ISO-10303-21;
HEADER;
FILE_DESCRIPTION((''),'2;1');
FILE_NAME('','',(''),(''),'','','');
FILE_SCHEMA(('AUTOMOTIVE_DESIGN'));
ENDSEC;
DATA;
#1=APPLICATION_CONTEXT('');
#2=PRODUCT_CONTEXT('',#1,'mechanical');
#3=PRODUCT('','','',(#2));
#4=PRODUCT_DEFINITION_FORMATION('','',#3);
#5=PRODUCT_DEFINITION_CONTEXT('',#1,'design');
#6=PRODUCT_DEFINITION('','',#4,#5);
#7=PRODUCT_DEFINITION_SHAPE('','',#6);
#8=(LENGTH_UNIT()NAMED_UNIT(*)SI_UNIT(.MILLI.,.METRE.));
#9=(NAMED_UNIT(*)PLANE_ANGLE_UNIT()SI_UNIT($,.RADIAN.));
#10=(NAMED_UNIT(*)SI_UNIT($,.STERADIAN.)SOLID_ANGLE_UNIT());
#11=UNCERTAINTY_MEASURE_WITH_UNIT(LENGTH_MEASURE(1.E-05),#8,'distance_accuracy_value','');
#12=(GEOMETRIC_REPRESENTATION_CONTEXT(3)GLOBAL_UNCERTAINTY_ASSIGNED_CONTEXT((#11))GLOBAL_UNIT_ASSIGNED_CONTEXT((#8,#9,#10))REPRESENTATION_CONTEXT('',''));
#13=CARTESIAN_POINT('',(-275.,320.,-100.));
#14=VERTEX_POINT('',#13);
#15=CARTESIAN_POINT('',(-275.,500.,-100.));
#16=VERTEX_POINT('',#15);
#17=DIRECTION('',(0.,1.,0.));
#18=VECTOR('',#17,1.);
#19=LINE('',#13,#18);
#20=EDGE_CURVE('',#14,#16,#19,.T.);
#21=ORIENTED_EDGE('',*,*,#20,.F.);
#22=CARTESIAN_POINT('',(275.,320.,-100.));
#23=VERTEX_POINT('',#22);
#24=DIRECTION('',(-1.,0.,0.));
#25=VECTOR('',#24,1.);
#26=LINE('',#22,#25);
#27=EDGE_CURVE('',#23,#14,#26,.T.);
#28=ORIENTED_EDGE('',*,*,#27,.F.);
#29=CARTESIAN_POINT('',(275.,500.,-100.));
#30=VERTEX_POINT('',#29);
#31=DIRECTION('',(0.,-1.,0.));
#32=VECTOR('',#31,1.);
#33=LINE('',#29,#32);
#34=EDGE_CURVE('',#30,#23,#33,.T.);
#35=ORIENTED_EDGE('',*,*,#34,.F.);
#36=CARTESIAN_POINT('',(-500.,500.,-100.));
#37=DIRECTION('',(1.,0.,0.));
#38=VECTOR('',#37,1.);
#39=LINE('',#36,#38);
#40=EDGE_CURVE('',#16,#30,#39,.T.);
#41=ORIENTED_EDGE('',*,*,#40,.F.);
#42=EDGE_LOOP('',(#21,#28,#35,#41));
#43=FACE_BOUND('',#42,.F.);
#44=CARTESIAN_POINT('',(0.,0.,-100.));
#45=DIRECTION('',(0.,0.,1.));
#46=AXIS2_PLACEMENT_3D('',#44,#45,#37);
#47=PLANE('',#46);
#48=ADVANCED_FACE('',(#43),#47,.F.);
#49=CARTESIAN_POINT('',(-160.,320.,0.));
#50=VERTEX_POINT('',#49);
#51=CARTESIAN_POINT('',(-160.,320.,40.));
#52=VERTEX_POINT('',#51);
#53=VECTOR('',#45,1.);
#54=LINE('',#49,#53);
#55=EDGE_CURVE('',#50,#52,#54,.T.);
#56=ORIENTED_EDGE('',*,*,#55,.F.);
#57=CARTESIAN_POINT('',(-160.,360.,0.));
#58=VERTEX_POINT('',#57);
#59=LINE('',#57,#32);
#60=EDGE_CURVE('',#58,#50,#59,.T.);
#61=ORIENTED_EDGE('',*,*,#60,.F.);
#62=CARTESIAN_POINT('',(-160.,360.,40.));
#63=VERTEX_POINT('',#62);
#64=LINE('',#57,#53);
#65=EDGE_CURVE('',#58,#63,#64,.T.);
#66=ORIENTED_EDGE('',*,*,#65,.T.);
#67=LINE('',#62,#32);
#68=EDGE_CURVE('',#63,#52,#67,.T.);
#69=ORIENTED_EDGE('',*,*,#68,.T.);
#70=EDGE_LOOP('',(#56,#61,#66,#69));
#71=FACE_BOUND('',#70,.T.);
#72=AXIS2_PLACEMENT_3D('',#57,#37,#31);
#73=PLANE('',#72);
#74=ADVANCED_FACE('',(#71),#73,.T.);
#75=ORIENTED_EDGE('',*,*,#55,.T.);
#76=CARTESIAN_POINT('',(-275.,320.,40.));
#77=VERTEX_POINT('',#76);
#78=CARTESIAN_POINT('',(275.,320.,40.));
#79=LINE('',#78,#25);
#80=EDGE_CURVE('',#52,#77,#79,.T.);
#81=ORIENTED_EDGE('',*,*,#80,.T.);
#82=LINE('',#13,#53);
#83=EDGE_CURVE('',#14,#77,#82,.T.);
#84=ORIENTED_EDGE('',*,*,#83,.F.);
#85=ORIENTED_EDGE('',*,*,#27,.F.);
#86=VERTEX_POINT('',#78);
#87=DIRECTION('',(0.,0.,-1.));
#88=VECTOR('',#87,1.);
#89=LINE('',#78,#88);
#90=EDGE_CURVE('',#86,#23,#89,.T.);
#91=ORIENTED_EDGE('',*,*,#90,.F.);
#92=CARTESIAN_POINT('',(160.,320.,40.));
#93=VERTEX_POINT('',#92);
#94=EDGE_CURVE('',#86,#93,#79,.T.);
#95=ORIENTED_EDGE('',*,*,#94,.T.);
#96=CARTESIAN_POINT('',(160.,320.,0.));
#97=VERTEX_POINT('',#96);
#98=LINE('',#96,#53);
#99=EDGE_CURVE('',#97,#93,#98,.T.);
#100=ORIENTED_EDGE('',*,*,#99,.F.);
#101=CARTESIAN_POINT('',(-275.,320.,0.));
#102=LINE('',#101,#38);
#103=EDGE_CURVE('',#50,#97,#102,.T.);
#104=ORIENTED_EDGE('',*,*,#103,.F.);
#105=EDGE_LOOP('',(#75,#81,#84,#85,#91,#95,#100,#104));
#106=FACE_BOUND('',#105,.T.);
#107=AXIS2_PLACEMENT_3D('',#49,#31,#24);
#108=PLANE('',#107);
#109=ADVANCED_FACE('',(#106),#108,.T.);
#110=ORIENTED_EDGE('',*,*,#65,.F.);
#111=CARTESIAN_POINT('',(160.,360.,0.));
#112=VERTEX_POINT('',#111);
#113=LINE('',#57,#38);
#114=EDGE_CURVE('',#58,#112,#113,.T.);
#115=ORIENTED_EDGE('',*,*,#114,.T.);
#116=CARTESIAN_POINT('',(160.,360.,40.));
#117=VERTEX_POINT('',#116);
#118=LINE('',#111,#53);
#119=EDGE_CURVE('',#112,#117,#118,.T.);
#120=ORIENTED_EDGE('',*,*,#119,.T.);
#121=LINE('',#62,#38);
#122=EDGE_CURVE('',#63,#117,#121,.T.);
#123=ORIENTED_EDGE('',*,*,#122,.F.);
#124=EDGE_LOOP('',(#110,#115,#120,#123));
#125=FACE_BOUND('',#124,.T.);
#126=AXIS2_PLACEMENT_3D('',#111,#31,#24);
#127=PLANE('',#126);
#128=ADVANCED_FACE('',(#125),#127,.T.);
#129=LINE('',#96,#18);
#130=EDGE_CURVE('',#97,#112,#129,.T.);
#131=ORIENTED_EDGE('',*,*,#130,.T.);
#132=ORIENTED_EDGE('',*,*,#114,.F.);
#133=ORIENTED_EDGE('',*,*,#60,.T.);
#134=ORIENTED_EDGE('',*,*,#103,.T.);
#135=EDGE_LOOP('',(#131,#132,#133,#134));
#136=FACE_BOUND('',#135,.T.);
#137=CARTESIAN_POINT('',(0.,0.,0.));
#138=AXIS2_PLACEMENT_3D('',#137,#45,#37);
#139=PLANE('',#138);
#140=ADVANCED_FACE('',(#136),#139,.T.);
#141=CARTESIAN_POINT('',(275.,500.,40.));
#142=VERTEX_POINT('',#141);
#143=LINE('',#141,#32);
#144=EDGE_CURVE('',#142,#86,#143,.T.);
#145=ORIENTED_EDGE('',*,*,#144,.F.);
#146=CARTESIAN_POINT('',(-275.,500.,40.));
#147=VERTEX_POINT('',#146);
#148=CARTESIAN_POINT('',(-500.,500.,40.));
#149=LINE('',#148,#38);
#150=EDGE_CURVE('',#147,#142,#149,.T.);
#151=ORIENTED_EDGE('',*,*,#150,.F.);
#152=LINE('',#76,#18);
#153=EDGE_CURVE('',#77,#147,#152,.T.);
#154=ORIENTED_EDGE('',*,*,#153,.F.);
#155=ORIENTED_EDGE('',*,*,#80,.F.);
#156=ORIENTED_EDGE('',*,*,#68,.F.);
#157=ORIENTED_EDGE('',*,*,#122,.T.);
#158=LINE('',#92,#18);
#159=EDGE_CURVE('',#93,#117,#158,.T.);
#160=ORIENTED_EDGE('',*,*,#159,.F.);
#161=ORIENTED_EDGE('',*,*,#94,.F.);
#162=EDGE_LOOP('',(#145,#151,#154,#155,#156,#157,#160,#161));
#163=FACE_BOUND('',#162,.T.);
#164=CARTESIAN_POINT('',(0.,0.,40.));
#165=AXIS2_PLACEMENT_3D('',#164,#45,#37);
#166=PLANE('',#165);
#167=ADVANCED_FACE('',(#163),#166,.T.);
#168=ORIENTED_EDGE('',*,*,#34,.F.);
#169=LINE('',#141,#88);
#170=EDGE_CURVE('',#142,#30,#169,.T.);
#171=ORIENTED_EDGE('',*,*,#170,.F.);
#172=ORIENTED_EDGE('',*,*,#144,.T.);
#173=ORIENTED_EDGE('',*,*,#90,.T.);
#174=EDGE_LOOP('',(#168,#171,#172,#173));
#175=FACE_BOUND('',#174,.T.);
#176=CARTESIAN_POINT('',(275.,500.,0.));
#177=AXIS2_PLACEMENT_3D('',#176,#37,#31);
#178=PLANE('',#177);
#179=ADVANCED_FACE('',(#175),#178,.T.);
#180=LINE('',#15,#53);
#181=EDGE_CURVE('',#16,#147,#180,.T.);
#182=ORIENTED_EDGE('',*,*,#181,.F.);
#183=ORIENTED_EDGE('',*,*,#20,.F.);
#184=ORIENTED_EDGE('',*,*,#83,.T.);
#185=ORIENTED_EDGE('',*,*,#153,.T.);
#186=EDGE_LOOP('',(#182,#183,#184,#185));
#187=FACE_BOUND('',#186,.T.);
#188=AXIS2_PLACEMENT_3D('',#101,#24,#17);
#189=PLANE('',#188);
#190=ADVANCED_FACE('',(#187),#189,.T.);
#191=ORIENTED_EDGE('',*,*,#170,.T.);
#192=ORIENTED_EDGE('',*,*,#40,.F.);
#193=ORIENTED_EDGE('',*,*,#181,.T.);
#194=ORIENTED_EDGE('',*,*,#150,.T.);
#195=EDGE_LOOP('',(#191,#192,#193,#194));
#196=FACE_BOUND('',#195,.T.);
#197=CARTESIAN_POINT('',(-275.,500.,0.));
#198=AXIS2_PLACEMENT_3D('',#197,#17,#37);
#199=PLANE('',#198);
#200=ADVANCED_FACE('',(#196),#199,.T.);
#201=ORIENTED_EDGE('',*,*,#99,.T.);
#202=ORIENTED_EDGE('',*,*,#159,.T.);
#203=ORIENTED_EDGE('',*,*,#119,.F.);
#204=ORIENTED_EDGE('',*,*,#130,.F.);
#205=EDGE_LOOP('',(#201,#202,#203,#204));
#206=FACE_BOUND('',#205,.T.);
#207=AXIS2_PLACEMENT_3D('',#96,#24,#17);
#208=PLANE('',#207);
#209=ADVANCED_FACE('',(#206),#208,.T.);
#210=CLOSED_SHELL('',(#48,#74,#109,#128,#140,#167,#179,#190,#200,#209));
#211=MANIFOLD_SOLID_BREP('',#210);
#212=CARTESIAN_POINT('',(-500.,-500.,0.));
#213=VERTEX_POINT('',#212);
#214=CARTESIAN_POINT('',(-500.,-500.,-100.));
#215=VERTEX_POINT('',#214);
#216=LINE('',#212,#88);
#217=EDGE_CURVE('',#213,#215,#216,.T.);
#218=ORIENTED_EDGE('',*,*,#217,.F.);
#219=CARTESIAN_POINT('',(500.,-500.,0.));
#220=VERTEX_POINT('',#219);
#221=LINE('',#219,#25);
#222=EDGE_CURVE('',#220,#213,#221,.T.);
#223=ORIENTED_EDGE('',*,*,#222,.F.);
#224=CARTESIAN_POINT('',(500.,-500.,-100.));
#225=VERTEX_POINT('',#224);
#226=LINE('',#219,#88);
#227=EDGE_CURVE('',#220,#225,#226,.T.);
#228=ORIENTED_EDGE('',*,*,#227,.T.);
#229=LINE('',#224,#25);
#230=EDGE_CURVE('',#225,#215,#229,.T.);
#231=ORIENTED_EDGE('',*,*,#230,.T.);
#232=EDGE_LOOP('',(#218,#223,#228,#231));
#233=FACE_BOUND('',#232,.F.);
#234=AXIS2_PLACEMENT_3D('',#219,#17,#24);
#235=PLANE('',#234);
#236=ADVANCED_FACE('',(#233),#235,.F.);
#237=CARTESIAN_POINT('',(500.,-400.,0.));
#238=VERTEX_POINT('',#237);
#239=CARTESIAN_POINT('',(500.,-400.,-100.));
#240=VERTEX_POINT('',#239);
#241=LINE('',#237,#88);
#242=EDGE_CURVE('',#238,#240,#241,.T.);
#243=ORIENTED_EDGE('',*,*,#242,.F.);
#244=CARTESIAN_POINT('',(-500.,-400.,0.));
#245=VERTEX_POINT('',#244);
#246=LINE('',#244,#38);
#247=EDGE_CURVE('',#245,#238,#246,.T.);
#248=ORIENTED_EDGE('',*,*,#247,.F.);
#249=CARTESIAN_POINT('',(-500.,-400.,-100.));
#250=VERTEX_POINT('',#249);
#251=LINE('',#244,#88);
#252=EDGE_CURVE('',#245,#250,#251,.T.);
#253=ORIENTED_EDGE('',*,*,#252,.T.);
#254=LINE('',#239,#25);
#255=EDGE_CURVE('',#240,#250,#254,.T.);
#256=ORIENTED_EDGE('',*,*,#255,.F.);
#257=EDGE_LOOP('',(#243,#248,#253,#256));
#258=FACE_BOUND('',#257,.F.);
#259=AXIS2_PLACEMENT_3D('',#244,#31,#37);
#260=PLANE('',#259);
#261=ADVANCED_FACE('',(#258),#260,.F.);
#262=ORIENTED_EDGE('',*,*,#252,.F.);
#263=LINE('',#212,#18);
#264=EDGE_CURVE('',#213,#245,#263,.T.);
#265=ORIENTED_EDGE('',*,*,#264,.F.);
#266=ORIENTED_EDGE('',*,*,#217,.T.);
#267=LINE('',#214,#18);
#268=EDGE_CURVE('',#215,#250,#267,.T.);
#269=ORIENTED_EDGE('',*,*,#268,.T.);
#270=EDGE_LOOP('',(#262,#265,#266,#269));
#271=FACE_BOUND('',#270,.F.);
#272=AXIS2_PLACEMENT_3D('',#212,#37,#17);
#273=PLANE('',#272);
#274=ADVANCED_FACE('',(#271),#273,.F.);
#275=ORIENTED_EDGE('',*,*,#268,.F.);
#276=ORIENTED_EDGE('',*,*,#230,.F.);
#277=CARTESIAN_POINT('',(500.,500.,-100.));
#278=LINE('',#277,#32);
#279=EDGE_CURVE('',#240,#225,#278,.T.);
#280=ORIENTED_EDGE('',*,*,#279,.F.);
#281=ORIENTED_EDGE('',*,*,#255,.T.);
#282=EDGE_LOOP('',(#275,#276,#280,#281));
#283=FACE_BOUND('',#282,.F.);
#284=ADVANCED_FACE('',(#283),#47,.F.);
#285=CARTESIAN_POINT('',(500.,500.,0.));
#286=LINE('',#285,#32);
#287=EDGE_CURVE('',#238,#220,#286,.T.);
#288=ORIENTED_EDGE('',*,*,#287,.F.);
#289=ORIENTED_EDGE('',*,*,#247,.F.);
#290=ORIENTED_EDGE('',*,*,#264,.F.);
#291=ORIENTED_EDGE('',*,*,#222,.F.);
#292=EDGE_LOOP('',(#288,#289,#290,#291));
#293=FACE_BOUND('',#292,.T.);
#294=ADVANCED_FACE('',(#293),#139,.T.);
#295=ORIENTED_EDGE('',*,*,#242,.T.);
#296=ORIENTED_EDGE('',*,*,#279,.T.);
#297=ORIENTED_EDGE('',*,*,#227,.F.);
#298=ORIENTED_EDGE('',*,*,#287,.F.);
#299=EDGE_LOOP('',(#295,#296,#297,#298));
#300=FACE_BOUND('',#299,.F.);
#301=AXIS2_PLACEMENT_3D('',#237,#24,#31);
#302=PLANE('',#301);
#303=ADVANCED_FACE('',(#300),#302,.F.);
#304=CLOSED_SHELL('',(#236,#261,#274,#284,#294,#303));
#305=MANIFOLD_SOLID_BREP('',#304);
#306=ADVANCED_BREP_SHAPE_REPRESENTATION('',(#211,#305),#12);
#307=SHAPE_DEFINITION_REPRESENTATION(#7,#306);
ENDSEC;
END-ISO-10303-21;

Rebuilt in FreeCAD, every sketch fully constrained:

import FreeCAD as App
import Part
import Sketcher
from FreeCAD import Vector
Q = App.Units.Quantity

doc = App.newDocument("Part")
body = doc.addObject("PartDesign::Body", "Body")
body.AllowCompound = True

# Sketch on XY plane
sketch1 = doc.addObject("Sketcher::SketchObject", "Sketch")
body.addObject(sketch1)
sketch1.AttachmentSupport = (doc.XY_Plane, [""])
sketch1.MapMode = "FlatFace"
sketch1.addGeometry([
    Part.LineSegment(Vector(275, 500, 0), Vector(-275, 500, 0)),  # 0
    Part.LineSegment(Vector(-275, 500, 0), Vector(-275, 320, 0)),  # 1
    Part.LineSegment(Vector(-275, 320, 0), Vector(275, 320, 0)),  # 2
    Part.LineSegment(Vector(275, 320, 0), Vector(275, 500, 0)),  # 3
    Part.LineSegment(Vector(-500, -400, 0), Vector(-500, -500, 0)),  # 4
    Part.LineSegment(Vector(-500, -500, 0), Vector(500, -500, 0)),  # 5
    Part.LineSegment(Vector(500, -500, 0), Vector(500, -400, 0)),  # 6
    Part.LineSegment(Vector(500, -400, 0), Vector(-500, -400, 0)),  # 7
], False)
sketch1.addConstraint([
    Sketcher.Constraint("Coincident", 0, 2, 1, 1),
    Sketcher.Constraint("Coincident", 1, 2, 2, 1),
    Sketcher.Constraint("Coincident", 2, 2, 3, 1),
    Sketcher.Constraint("Coincident", 3, 2, 0, 1),
    Sketcher.Constraint("Coincident", 4, 2, 5, 1),
    Sketcher.Constraint("Coincident", 5, 2, 6, 1),
    Sketcher.Constraint("Coincident", 6, 2, 7, 1),
    Sketcher.Constraint("Coincident", 7, 2, 4, 1),
    Sketcher.Constraint("Horizontal", 0),
    Sketcher.Constraint("Vertical", 1),
    Sketcher.Constraint("Horizontal", 2),
    Sketcher.Constraint("Vertical", 3),
    Sketcher.Constraint("Vertical", 4),
    Sketcher.Constraint("Horizontal", 5),
    Sketcher.Constraint("Vertical", 6),
    Sketcher.Constraint("Horizontal", 7),
    Sketcher.Constraint("DistanceX", 0, 2, 0, 1, Q("550 mm")),
    Sketcher.Constraint("DistanceX", 5, 1, 5, 2, Q("1000 mm")),
    Sketcher.Constraint("DistanceY", 1, 2, 1, 1, Q("180 mm")),
    Sketcher.Constraint("DistanceY", 4, 2, 4, 1, Q("100 mm")),
    Sketcher.Constraint("DistanceY", -1, 1, 1, 2, Q("320 mm")),
    Sketcher.Constraint("DistanceY", 4, 2, 0, 2, Q("1000 mm")),
    Sketcher.Constraint("DistanceX", 0, 2, -1, 1, Q("275 mm")),
    Sketcher.Constraint("DistanceX", 4, 2, -1, 1, Q("500 mm")),
])
pad1 = doc.addObject("PartDesign::Pad", "Pad")
body.addObject(pad1)
pad1.Profile = sketch1
pad1.Length = 100
pad1.Reversed = True

# Sketch on XY plane
sketch2 = doc.addObject("Sketcher::SketchObject", "Sketch001")
body.addObject(sketch2)
sketch2.AttachmentSupport = (doc.XY_Plane, [""])
sketch2.MapMode = "FlatFace"
sketch2.addGeometry([
    Part.LineSegment(Vector(275, 500, 0), Vector(-275, 500, 0)),  # 0
    Part.LineSegment(Vector(-275, 500, 0), Vector(-275, 320, 0)),  # 1
    Part.LineSegment(Vector(-275, 320, 0), Vector(-160, 320, 0)),  # 2
    Part.LineSegment(Vector(-160, 320, 0), Vector(-160, 360, 0)),  # 3
    Part.LineSegment(Vector(-160, 360, 0), Vector(160, 360, 0)),  # 4
    Part.LineSegment(Vector(160, 360, 0), Vector(160, 320, 0)),  # 5
    Part.LineSegment(Vector(160, 320, 0), Vector(275, 320, 0)),  # 6
    Part.LineSegment(Vector(275, 320, 0), Vector(275, 500, 0)),  # 7
], False)
sketch2.addConstraint([
    Sketcher.Constraint("Coincident", 0, 2, 1, 1),
    Sketcher.Constraint("Coincident", 1, 2, 2, 1),
    Sketcher.Constraint("Coincident", 2, 2, 3, 1),
    Sketcher.Constraint("Coincident", 3, 2, 4, 1),
    Sketcher.Constraint("Coincident", 4, 2, 5, 1),
    Sketcher.Constraint("Coincident", 5, 2, 6, 1),
    Sketcher.Constraint("Coincident", 6, 2, 7, 1),
    Sketcher.Constraint("Coincident", 7, 2, 0, 1),
    Sketcher.Constraint("Horizontal", 0),
    Sketcher.Constraint("Vertical", 1),
    Sketcher.Constraint("Horizontal", 2),
    Sketcher.Constraint("Vertical", 3),
    Sketcher.Constraint("Horizontal", 4),
    Sketcher.Constraint("Vertical", 5),
    Sketcher.Constraint("Horizontal", 6),
    Sketcher.Constraint("Vertical", 7),
    Sketcher.Constraint("Symmetric", 2, 2, 5, 2, -2),
    Sketcher.Constraint("Equal", 2, 6),
    Sketcher.Constraint("DistanceX", 0, 2, 0, 1, Q("550 mm")),
    Sketcher.Constraint("DistanceX", 4, 1, 4, 2, Q("320 mm")),
    Sketcher.Constraint("DistanceY", 1, 2, 1, 1, Q("180 mm")),
    Sketcher.Constraint("DistanceY", 3, 1, 3, 2, Q("40 mm")),
    Sketcher.Constraint("DistanceY", -1, 1, 1, 2, Q("320 mm")),
])
pad2 = doc.addObject("PartDesign::Pad", "Pad001")
body.addObject(pad2)
pad2.Profile = sketch2
pad2.Length = 40

doc.recompute()
